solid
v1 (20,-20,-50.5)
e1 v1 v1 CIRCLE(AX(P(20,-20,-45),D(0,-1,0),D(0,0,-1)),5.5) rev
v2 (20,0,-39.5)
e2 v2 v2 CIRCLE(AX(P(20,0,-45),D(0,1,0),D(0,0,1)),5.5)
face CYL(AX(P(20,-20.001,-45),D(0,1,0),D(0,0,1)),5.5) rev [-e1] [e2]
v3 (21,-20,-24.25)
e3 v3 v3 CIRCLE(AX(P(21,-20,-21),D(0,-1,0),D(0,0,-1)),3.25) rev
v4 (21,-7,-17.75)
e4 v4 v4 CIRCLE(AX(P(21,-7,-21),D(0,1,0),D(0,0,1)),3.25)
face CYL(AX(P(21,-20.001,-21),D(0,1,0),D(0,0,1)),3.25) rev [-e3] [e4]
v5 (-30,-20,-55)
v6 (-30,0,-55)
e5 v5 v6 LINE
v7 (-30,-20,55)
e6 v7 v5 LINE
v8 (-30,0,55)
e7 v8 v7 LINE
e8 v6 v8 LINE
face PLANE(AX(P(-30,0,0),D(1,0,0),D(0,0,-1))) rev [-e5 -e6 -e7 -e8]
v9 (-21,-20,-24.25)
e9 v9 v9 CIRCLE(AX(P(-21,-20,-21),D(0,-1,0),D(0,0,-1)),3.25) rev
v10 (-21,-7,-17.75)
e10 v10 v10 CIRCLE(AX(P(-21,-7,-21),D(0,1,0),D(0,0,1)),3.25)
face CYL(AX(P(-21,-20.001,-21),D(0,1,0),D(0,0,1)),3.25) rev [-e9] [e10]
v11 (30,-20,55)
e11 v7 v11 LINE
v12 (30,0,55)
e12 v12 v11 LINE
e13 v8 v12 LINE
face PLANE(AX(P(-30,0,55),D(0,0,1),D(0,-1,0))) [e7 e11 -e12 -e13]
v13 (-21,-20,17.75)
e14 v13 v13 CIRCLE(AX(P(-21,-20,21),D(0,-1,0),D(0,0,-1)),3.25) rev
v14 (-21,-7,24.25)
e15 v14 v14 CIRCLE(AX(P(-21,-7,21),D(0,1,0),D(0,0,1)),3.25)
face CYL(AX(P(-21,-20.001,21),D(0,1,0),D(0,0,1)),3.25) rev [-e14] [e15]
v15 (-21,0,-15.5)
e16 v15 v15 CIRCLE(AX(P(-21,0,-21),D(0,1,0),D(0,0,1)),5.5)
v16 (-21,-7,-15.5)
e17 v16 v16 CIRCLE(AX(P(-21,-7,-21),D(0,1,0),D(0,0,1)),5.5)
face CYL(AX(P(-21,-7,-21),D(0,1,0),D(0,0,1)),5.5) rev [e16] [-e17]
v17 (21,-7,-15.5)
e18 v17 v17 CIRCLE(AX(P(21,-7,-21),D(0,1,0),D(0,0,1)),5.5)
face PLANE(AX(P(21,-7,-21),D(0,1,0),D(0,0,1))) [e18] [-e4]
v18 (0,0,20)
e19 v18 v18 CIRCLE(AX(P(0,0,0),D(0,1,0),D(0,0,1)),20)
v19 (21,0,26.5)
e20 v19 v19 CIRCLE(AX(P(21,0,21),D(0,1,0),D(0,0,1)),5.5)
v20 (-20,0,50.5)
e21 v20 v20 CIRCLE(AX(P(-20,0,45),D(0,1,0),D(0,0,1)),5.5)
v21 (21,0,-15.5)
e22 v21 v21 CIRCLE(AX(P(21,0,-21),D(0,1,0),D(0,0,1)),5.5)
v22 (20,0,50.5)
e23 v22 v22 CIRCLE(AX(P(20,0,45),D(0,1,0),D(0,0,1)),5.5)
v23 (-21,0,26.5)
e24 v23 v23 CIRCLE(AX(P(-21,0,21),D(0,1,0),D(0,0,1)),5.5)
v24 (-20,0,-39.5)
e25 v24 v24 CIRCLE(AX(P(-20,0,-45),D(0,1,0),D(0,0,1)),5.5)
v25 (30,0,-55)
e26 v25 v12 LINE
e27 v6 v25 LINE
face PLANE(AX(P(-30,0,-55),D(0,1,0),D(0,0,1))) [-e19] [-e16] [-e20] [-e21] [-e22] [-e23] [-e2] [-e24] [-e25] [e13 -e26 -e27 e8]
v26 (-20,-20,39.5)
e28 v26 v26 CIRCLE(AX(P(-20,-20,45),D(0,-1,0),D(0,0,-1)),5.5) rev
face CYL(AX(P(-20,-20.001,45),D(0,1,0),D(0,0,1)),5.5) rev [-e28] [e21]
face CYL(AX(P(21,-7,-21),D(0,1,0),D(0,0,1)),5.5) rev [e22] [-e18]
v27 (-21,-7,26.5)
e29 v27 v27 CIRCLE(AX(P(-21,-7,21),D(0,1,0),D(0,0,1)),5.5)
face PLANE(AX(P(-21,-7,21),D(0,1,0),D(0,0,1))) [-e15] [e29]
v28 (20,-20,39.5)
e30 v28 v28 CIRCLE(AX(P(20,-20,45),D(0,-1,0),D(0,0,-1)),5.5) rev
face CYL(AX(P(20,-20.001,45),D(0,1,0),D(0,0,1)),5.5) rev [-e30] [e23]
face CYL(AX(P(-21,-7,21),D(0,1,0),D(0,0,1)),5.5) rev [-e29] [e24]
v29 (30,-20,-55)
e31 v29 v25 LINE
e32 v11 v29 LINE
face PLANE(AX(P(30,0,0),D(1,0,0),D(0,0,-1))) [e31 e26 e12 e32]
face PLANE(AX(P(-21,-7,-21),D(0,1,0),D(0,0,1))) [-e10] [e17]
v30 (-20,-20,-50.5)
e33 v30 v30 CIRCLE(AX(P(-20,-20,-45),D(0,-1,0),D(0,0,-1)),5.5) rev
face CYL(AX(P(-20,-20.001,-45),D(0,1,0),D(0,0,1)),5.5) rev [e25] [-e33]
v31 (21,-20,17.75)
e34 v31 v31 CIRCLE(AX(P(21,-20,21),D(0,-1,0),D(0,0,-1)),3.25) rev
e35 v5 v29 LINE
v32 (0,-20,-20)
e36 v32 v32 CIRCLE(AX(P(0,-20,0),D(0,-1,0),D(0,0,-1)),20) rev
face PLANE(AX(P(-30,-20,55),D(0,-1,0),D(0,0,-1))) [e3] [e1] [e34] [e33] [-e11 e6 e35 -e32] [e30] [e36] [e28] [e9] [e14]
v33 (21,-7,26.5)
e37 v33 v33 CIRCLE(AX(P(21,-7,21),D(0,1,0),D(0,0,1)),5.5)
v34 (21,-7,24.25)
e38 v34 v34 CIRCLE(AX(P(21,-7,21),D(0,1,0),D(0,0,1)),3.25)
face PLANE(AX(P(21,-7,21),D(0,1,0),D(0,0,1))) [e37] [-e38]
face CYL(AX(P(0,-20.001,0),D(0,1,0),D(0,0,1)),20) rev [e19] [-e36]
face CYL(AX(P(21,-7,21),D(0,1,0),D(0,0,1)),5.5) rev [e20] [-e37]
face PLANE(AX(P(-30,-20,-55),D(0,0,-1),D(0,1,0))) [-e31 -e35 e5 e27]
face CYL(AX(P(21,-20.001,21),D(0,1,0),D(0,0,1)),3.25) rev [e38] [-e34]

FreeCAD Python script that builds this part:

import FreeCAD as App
import Part
import Sketcher


def add_polygon(sketch, points):
    """Adds a closed chain of lines whose ends are joined by coincident constraints."""
    first, n = sketch.GeometryCount, len(points)
    for a, b in zip(points, points[1:] + points[:1]):
        sketch.addGeometry(Part.LineSegment(App.Vector(*a, 0), App.Vector(*b, 0)), False)
    for i in range(n):
        sketch.addConstraint(Sketcher.Constraint("Coincident", first + i, 2, first + (i + 1) % n, 1))

doc = App.newDocument("Part")
body = doc.addObject("PartDesign::Body", "Body")

sketch1 = doc.addObject("Sketcher::SketchObject", "Sketch")
body.addObject(sketch1)
sketch1.AttachmentSupport = (doc.YZ_Plane, [""])
sketch1.MapMode = "FlatFace"
add_polygon(sketch1, [(0, 55), (-20, 55), (-20, -55), (0, -55)])
sketch1.addConstraint([
    Sketcher.Constraint("Horizontal", 0),
    Sketcher.Constraint("Vertical", 1),
    Sketcher.Constraint("Horizontal", 2),
    Sketcher.Constraint("Vertical", 3),
    Sketcher.Constraint("Symmetric", 2, 2, 3, 2, -1, 1),
    Sketcher.Constraint("DistanceX", 0, 2, 0, 1, 20.0),
    Sketcher.Constraint("DistanceY", 1, 2, 1, 1, 110.0),
])
pad1 = doc.addObject("PartDesign::Pad", "Pad")
body.addObject(pad1)
pad1.Profile = sketch1
pad1.Type = "TwoLengths"
pad1.Length = 30
pad1.Length2 = 30

sketch2 = doc.addObject("Sketcher::SketchObject", "Sketch001")
body.addObject(sketch2)
sketch2.AttachmentSupport = (doc.XZ_Plane, [""])
sketch2.MapMode = "FlatFace"
sketch2.addGeometry(Part.Circle(App.Vector(0, 0, 0), App.Vector(0, 0, 1), 20), False)
sketch2.addConstraint([
    Sketcher.Constraint("Coincident", 0, 3, -1, 1),
    Sketcher.Constraint("Diameter", 0, 40.0),
])
pocket1 = doc.addObject("PartDesign::Pocket", "Pocket")
body.addObject(pocket1)
pocket1.Profile = sketch2
pocket1.Type = "UpToFirst"
pocket1.Reversed = True

sketch3 = doc.addObject("Sketcher::SketchObject", "Sketch002")
body.addObject(sketch3)
sketch3.AttachmentSupport = (doc.XZ_Plane, [""])
sketch3.MapMode = "FlatFace"
sketch3.addGeometry([
    Part.Circle(App.Vector(-21, -21, 0), App.Vector(0, 0, 1), 5.5),
    Part.Circle(App.Vector(21, -21, 0), App.Vector(0, 0, 1), 5.5),
    Part.Circle(App.Vector(21, 21, 0), App.Vector(0, 0, 1), 5.5),
    Part.Circle(App.Vector(-21, 21, 0), App.Vector(0, 0, 1), 5.5),
], False)
sketch3.addConstraint([
    Sketcher.Constraint("Equal", 0, 1),
    Sketcher.Constraint("Equal", 1, 2),
    Sketcher.Constraint("Equal", 2, 3),
    Sketcher.Constraint("Symmetric", 0, 3, 2, 3, -1, 1),
    Sketcher.Constraint("Symmetric", 1, 3, 3, 3, -1, 1),
    Sketcher.Constraint("Symmetric", 0, 3, 1, 3, -2),
    Sketcher.Constraint("Diameter", 0, 11.0),
    Sketcher.Constraint("DistanceX", 0, 3, -1, 1, 21.0),
    Sketcher.Constraint("DistanceY", 0, 3, -1, 1, 21.0),
])
pocket2 = doc.addObject("PartDesign::Pocket", "Pocket001")
body.addObject(pocket2)
pocket2.Profile = sketch3
pocket2.Length = 7
pocket2.Reversed = True

sketch4 = doc.addObject("Sketcher::SketchObject", "Sketch003")
body.addObject(sketch4)
sketch4.AttachmentSupport = (doc.XZ_Plane, [""])
sketch4.MapMode = "FlatFace"
sketch4.AttachmentOffset = App.Placement(App.Vector(0, 0, 7), App.Rotation())
sketch4.addGeometry(Part.Circle(App.Vector(-21, -21, 0), App.Vector(0, 0, 1), 3.25), False)
sketch4.addConstraint([
    Sketcher.Constraint("Diameter", 0, 6.5),
    Sketcher.Constraint("DistanceX", 0, 3, -1, 1, 21.0),
    Sketcher.Constraint("DistanceY", 0, 3, -1, 1, 21.0),
])
pocket3 = doc.addObject("PartDesign::Pocket", "Pocket002")
body.addObject(pocket3)
pocket3.Profile = sketch4
pocket3.Type = "UpToFirst"
pocket3.Reversed = True

sketch5 = doc.addObject("Sketcher::SketchObject", "Sketch004")
body.addObject(sketch5)
sketch5.AttachmentSupport = (doc.XZ_Plane, [""])
sketch5.MapMode = "FlatFace"
sketch5.AttachmentOffset = App.Placement(App.Vector(0, 0, 7), App.Rotation())
sketch5.addGeometry(Part.Circle(App.Vector(21, -21, 0), App.Vector(0, 0, 1), 3.25), False)
sketch5.addConstraint([
    Sketcher.Constraint("Diameter", 0, 6.5),
    Sketcher.Constraint("DistanceX", -1, 1, 0, 3, 21.0),
    Sketcher.Constraint("DistanceY", 0, 3, -1, 1, 21.0),
])
pocket4 = doc.addObject("PartDesign::Pocket", "Pocket003")
body.addObject(pocket4)
pocket4.Profile = sketch5
pocket4.Type = "UpToFirst"
pocket4.Reversed = True

sketch6 = doc.addObject("Sketcher::SketchObject", "Sketch005")
body.addObject(sketch6)
sketch6.AttachmentSupport = (doc.XZ_Plane, [""])
sketch6.MapMode = "FlatFace"
sketch6.AttachmentOffset = App.Placement(App.Vector(0, 0, 7), App.Rotation())
sketch6.addGeometry(Part.Circle(App.Vector(21, 21, 0), App.Vector(0, 0, 1), 3.25), False)
sketch6.addConstraint([
    Sketcher.Constraint("Diameter", 0, 6.5),
    Sketcher.Constraint("DistanceX", -1, 1, 0, 3, 21.0),
    Sketcher.Constraint("DistanceY", -1, 1, 0, 3, 21.0),
])
pocket5 = doc.addObject("PartDesign::Pocket", "Pocket004")
body.addObject(pocket5)
pocket5.Profile = sketch6
pocket5.Type = "UpToFirst"
pocket5.Reversed = True

sketch7 = doc.addObject("Sketcher::SketchObject", "Sketch006")
body.addObject(sketch7)
sketch7.AttachmentSupport = (doc.XZ_Plane, [""])
sketch7.MapMode = "FlatFace"
sketch7.AttachmentOffset = App.Placement(App.Vector(0, 0, 7), App.Rotation())
sketch7.addGeometry(Part.Circle(App.Vector(-21, 21, 0), App.Vector(0, 0, 1), 3.25), False)
sketch7.addConstraint([
    Sketcher.Constraint("Diameter", 0, 6.5),
    Sketcher.Constraint("DistanceX", 0, 3, -1, 1, 21.0),
    Sketcher.Constraint("DistanceY", -1, 1, 0, 3, 21.0),
])
pocket6 = doc.addObject("PartDesign::Pocket", "Pocket005")
body.addObject(pocket6)
pocket6.Profile = sketch7
pocket6.Type = "UpToFirst"
pocket6.Reversed = True

sketch8 = doc.addObject("Sketcher::SketchObject", "Sketch007")
body.addObject(sketch8)
sketch8.AttachmentSupport = (doc.XZ_Plane, [""])
sketch8.MapMode = "FlatFace"
sketch8.addGeometry(Part.Circle(App.Vector(-20, -45, 0), App.Vector(0, 0, 1), 5.5), False)
sketch8.addConstraint([
    Sketcher.Constraint("Diameter", 0, 11.0),
    Sketcher.Constraint("DistanceX", 0, 3, -1, 1, 20.0),
    Sketcher.Constraint("DistanceY", 0, 3, -1, 1, 45.0),
])
pocket7 = doc.addObject("PartDesign::Pocket", "Pocket006")
body.addObject(pocket7)
pocket7.Profile = sketch8
pocket7.Type = "UpToFirst"
pocket7.Reversed = True

sketch9 = doc.addObject("Sketcher::SketchObject", "Sketch008")
body.addObject(sketch9)
sketch9.AttachmentSupport = (doc.XZ_Plane, [""])
sketch9.MapMode = "FlatFace"
sketch9.addGeometry(Part.Circle(App.Vector(20, -45, 0), App.Vector(0, 0, 1), 5.5), False)
sketch9.addConstraint([
    Sketcher.Constraint("Diameter", 0, 11.0),
    Sketcher.Constraint("DistanceX", -1, 1, 0, 3, 20.0),
    Sketcher.Constraint("DistanceY", 0, 3, -1, 1, 45.0),
])
pocket8 = doc.addObject("PartDesign::Pocket", "Pocket007")
body.addObject(pocket8)
pocket8.Profile = sketch9
pocket8.Type = "UpToFirst"
pocket8.Reversed = True

sketch10 = doc.addObject("Sketcher::SketchObject", "Sketch009")
body.addObject(sketch10)
sketch10.AttachmentSupport = (doc.XZ_Plane, [""])
sketch10.MapMode = "FlatFace"
sketch10.addGeometry(Part.Circle(App.Vector(20, 45, 0), App.Vector(0, 0, 1), 5.5), False)
sketch10.addConstraint([
    Sketcher.Constraint("Diameter", 0, 11.0),
    Sketcher.Constraint("DistanceX", -1, 1, 0, 3, 20.0),
    Sketcher.Constraint("DistanceY", -1, 1, 0, 3, 45.0),
])
pocket9 = doc.addObject("PartDesign::Pocket", "Pocket008")
body.addObject(pocket9)
pocket9.Profile = sketch10
pocket9.Type = "UpToFirst"
pocket9.Reversed = True

sketch11 = doc.addObject("Sketcher::SketchObject", "Sketch010")
body.addObject(sketch11)
sketch11.AttachmentSupport = (doc.XZ_Plane, [""])
sketch11.MapMode = "FlatFace"
sketch11.addGeometry(Part.Circle(App.Vector(-20, 45, 0), App.Vector(0, 0, 1), 5.5), False)
sketch11.addConstraint([
    Sketcher.Constraint("Diameter", 0, 11.0),
    Sketcher.Constraint("DistanceX", 0, 3, -1, 1, 20.0),
    Sketcher.Constraint("DistanceY", -1, 1, 0, 3, 45.0),
])
pocket10 = doc.addObject("PartDesign::Pocket", "Pocket009")
body.addObject(pocket10)
pocket10.Profile = sketch11
pocket10.Type = "UpToFirst"
pocket10.Reversed = True

doc.recompute()
